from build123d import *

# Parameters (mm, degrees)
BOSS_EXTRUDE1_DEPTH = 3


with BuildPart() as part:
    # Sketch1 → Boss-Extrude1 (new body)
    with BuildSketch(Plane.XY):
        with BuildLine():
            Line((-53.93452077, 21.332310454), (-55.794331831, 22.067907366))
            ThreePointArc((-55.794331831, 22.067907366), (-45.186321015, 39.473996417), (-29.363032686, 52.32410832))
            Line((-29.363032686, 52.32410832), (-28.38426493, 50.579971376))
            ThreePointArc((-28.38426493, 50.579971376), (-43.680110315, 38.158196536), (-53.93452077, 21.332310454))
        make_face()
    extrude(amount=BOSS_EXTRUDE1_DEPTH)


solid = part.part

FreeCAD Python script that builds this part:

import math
import FreeCAD as App
import Part
import Sketcher

V = App.Vector

doc = App.newDocument("Part")
body = doc.addObject("PartDesign::Body", "Body")

# Sketch on XY plane
sketch1 = doc.addObject("Sketcher::SketchObject", "Sketch")
body.addObject(sketch1)
sketch1.AttachmentSupport = (doc.XY_Plane, [""])
sketch1.MapMode = "FlatFace"
sketch1.addGeometry(Part.LineSegment(V(-55.794332, 22.067907, 0), V(-53.934521, 21.33231, 0)), False)
sketch1.addGeometry(Part.ArcOfCircle(Part.Circle(V(0, 0, 0), V(0, 0, 1), 58), math.radians(119.300094), math.radians(158.420094)), False)
sketch1.addGeometry(Part.LineSegment(V(-28.384265, 50.579971, 0), V(-29.363033, 52.324108, 0)), False)
sketch1.addGeometry(Part.ArcOfCircle(Part.Circle(V(0, 0, 0), V(0, 0, 1), 60), math.radians(119.300094), math.radians(158.420094)), False)
sketch1.addConstraint(Sketcher.Constraint("Coincident", 0, 2, 1, 2))
sketch1.addConstraint(Sketcher.Constraint("Coincident", 1, 1, 2, 1))
sketch1.addConstraint(Sketcher.Constraint("Coincident", 2, 2, 3, 1))
sketch1.addConstraint(Sketcher.Constraint("Coincident", 3, 2, 0, 1))
sketch1.addConstraint(Sketcher.Constraint("Coincident", 1, 3, -1, 1))
sketch1.addConstraint(Sketcher.Constraint("Coincident", 3, 3, -1, 1))
sketch1.addConstraint(Sketcher.Constraint("Radius", 1, 58.0))
sketch1.addConstraint(Sketcher.Constraint("Radius", 3, 60.0))
sketch1.addConstraint(Sketcher.Constraint("DistanceX", 3, 2, 2, 2, 26.431299))
sketch1.addConstraint(Sketcher.Constraint("DistanceY", 3, 2, 2, 2, 30.256201))
sketch1.addConstraint(Sketcher.Constraint("DistanceX", 0, 2, -1, 1, 53.934521))
sketch1.addConstraint(Sketcher.Constraint("DistanceY", -1, 1, 1, 1, 50.579971))
pad1 = doc.addObject("PartDesign::Pad", "Pad")
body.addObject(pad1)
pad1.Profile = sketch1
pad1.Length = 3

doc.recompute()
